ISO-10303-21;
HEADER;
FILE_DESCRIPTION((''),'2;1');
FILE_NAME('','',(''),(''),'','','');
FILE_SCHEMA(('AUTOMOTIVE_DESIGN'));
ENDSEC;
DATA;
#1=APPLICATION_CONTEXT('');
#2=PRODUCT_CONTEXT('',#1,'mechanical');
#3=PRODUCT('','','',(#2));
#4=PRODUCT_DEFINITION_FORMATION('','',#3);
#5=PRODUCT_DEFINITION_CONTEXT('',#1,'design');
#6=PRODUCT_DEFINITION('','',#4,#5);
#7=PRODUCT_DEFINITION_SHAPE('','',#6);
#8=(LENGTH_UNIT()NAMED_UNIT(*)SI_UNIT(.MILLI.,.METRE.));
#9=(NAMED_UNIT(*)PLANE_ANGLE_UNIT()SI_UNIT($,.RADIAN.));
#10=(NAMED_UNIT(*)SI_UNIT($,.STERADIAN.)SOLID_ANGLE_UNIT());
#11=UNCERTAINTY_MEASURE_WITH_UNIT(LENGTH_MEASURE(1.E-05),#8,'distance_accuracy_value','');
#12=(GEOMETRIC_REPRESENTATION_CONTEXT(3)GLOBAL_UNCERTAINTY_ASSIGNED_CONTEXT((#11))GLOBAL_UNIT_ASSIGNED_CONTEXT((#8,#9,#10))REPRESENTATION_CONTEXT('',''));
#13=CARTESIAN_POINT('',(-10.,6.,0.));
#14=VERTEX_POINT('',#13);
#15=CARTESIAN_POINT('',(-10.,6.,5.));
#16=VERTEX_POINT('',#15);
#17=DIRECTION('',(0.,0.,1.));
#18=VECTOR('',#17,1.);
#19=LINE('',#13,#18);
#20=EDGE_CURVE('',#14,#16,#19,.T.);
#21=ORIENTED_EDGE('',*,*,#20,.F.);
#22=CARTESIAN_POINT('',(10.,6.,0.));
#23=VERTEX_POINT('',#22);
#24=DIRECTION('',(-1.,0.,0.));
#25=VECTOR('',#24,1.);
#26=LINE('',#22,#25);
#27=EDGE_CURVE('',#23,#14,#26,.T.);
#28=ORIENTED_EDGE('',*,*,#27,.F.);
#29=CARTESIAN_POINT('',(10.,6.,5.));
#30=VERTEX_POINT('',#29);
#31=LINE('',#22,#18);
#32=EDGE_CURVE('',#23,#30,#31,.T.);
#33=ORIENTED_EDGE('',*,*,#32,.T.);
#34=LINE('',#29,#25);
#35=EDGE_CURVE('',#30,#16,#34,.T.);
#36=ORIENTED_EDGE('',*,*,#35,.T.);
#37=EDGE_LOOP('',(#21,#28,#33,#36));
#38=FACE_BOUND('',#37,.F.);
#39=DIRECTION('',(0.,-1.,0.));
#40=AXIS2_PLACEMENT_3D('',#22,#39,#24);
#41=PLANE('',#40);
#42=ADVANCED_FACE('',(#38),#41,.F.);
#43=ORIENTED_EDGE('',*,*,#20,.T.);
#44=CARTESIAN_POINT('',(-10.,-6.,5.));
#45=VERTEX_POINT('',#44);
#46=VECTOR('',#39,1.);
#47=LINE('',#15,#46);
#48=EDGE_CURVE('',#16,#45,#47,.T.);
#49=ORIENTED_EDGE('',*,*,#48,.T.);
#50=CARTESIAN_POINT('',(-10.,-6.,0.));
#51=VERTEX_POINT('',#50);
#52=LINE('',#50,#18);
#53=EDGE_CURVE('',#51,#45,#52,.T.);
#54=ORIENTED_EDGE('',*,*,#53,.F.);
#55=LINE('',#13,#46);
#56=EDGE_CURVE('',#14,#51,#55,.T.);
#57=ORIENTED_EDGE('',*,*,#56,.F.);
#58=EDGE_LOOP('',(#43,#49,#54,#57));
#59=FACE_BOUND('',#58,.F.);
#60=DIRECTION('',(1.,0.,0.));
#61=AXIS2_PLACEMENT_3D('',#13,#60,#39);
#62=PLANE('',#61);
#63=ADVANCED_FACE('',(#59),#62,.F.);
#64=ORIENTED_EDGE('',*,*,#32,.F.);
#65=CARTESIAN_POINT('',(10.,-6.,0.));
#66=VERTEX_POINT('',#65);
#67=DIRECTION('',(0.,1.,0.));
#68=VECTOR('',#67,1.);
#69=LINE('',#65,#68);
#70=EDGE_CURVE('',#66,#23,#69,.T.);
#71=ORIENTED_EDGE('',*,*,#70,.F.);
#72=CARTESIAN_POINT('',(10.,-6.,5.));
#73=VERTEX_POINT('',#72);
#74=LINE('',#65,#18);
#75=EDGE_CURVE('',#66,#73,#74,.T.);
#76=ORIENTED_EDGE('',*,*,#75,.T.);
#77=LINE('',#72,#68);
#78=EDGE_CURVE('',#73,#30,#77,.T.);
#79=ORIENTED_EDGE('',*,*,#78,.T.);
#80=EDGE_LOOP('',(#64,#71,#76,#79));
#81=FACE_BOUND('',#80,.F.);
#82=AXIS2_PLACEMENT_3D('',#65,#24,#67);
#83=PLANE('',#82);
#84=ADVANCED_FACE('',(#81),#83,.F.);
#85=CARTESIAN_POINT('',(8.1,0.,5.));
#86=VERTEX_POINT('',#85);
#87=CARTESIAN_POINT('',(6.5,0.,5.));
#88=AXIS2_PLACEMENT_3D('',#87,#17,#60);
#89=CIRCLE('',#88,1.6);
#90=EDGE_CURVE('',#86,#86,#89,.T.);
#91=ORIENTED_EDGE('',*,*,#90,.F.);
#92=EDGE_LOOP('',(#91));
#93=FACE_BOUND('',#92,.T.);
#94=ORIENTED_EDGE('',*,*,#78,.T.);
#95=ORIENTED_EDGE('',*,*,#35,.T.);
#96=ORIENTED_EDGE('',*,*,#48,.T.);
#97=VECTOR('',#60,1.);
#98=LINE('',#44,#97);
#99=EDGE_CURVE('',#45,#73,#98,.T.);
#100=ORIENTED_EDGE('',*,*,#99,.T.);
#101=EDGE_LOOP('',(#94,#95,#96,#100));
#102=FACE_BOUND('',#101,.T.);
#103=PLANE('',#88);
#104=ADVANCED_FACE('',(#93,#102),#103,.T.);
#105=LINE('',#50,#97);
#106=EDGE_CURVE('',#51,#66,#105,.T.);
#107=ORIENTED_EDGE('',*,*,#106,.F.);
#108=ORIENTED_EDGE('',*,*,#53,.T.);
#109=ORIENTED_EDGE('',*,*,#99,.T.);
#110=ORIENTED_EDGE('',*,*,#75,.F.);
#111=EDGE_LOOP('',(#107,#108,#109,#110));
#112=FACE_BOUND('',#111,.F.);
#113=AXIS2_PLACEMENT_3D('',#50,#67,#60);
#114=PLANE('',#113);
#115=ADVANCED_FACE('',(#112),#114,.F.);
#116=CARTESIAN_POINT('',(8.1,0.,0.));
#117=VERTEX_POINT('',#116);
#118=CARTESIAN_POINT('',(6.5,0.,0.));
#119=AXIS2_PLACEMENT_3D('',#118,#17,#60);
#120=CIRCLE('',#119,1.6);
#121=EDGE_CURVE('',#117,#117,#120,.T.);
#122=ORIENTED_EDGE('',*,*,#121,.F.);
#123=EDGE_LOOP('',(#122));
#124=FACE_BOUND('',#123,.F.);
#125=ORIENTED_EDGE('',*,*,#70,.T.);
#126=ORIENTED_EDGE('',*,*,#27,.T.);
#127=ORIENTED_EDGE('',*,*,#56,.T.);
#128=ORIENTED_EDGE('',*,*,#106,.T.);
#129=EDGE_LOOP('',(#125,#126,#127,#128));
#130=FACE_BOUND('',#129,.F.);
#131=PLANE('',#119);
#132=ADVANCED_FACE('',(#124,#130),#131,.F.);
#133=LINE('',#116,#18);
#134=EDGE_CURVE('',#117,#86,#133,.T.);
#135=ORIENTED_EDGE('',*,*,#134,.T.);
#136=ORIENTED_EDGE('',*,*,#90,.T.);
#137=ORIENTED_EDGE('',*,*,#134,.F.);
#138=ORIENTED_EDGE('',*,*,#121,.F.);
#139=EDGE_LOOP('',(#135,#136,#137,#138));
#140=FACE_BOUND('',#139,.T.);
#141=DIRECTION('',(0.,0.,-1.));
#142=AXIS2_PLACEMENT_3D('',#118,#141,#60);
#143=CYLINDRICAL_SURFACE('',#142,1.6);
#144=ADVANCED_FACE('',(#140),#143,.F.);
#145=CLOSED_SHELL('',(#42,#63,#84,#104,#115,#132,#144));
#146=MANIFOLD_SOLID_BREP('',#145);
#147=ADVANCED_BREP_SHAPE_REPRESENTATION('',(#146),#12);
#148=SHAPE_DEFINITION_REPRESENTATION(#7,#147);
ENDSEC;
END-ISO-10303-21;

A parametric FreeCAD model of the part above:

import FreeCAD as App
import Part
import Sketcher
from FreeCAD import Vector
Q = App.Units.Quantity

doc = App.newDocument("Part")
body = doc.addObject("PartDesign::Body", "Body")

# Sketch on XY plane
sketch1 = body.newObject("Sketcher::SketchObject", "Sketch")
sketch1.AttachmentSupport = (doc.getObject("XY_Plane"), [""])
sketch1.MapMode = "FlatFace"
sketch1.addGeometry(Part.LineSegment(Vector(10, 6, 0), Vector(-10, 6, 0)), False)
sketch1.addGeometry(Part.LineSegment(Vector(-10, 6, 0), Vector(-10, -6, 0)), False)
sketch1.addGeometry(Part.LineSegment(Vector(-10, -6, 0), Vector(10, -6, 0)), False)
sketch1.addGeometry(Part.LineSegment(Vector(10, -6, 0), Vector(10, 6, 0)), False)
sketch1.addGeometry(Part.Circle(Vector(6.5, 0, 0), Vector(0, 0, 1), 1.6), False)
sketch1.addConstraint(Sketcher.Constraint("Coincident", 0, 2, 1, 1))
sketch1.addConstraint(Sketcher.Constraint("Coincident", 1, 2, 2, 1))
sketch1.addConstraint(Sketcher.Constraint("Coincident", 2, 2, 3, 1))
sketch1.addConstraint(Sketcher.Constraint("Coincident", 3, 2, 0, 1))
sketch1.addConstraint(Sketcher.Constraint("Horizontal", 0))
sketch1.addConstraint(Sketcher.Constraint("Vertical", 1))
sketch1.addConstraint(Sketcher.Constraint("Horizontal", 2))
sketch1.addConstraint(Sketcher.Constraint("Vertical", 3))
sketch1.addConstraint(Sketcher.Constraint("Symmetric", 0, 2, 2, 2, -1, 1))
sketch1.addConstraint(Sketcher.Constraint("PointOnObject", 4, 3, -1))
sketch1.addConstraint(Sketcher.Constraint("Diameter", 4, Q("3.2 mm")))
sketch1.addConstraint(Sketcher.Constraint("DistanceX", 0, 2, 0, 1, Q("20 mm")))
sketch1.addConstraint(Sketcher.Constraint("DistanceY", 1, 2, 1, 1, Q("12 mm")))
sketch1.addConstraint(Sketcher.Constraint("DistanceX", -1, 1, 4, 3, Q("6.5 mm")))
pad1 = body.newObject("PartDesign::Pad", "Pad")
pad1.Profile = sketch1
pad1.Length = 5

doc.recompute()
